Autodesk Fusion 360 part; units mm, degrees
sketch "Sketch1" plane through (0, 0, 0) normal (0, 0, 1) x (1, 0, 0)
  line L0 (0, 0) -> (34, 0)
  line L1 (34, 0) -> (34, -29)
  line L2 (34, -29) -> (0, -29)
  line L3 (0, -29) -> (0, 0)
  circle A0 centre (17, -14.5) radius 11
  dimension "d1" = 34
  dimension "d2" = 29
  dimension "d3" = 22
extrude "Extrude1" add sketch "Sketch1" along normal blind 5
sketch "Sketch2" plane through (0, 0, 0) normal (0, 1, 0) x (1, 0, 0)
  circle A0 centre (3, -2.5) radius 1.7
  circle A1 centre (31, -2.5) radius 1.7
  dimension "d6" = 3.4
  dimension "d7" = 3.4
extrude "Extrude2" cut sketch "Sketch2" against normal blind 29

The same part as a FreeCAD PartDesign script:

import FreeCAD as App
import Part
import Sketcher
from FreeCAD import Vector


def add_polygon(sketch, points):
    """Adds a closed chain of lines whose ends are joined by coincident constraints."""
    first, n = sketch.GeometryCount, len(points)
    for a, b in zip(points, points[1:] + points[:1]):
        sketch.addGeometry(Part.LineSegment(App.Vector(*a, 0), App.Vector(*b, 0)), False)
    for i in range(n):
        sketch.addConstraint(Sketcher.Constraint("Coincident", first + i, 2, first + (i + 1) % n, 1))

doc = App.newDocument("Part")
params = doc.addObject("Spreadsheet::Sheet", "Params")
for row, (alias, value) in enumerate([
    ("sketch1_diameter", "22 mm"),
    ("sketch1_width", "34 mm"),
    ("sketch1_height", "29 mm"),
    ("pad1_length", "5 mm"),
    ("sketch2_diameter", "3.4 mm"),
    ("pocket1_length", "29 mm"),
], start=1):
    params.set(f"A{row}", alias)
    params.set(f"B{row}", "=" + value)
    params.setAlias(f"B{row}", alias)

body = doc.addObject("PartDesign::Body", "Body")

# Sketch on XY plane
sketch1 = body.newObject("Sketcher::SketchObject", "Sketch")
sketch1.AttachmentSupport = (doc.getObject("XY_Plane"), [""])
sketch1.MapMode = "FlatFace"
add_polygon(sketch1, [(34, 0), (0, 0), (0, -29), (34, -29)])  # lines 0-3
sketch1.addGeometry(Part.Circle(Vector(17, -14.5, 0), Vector(0, 0, 1), 11), False)  # 4
sketch1.addConstraint(Sketcher.Constraint("Horizontal", 0))
sketch1.addConstraint(Sketcher.Constraint("Vertical", 1))
sketch1.addConstraint(Sketcher.Constraint("Horizontal", 2))
sketch1.addConstraint(Sketcher.Constraint("Vertical", 3))
sketch1.addConstraint(Sketcher.Constraint("Coincident", 0, 2, -1, 1))
sketch1.addConstraint(Sketcher.Constraint("Diameter", 4, 22.0))
sketch1.addConstraint(Sketcher.Constraint("DistanceX", 0, 2, 0, 1, 34.0))
sketch1.addConstraint(Sketcher.Constraint("DistanceY", 1, 2, 1, 1, 29.0))
sketch1.addConstraint(Sketcher.Constraint("DistanceX", -1, 1, 4, 3, 17.0))
sketch1.addConstraint(Sketcher.Constraint("DistanceY", 4, 3, -1, 1, 14.5))
sketch1.setExpression("Constraints[9]", "Params.sketch1_diameter")
sketch1.setExpression("Constraints[10]", "Params.sketch1_width")
sketch1.setExpression("Constraints[11]", "Params.sketch1_height")
pad1 = body.newObject("PartDesign::Pad", "Pad")
pad1.Profile = sketch1
pad1.setExpression("Length", "Params.pad1_length")

# Sketch on XZ plane
sketch2 = body.newObject("Sketcher::SketchObject", "Sketch001")
sketch2.AttachmentSupport = (doc.getObject("XZ_Plane"), [""])
sketch2.MapMode = "FlatFace"
sketch2.addGeometry(Part.Circle(Vector(3, 2.5, 0), Vector(0, 0, 1), 1.7), False)
sketch2.addGeometry(Part.Circle(Vector(31, 2.5, 0), Vector(0, 0, 1), 1.7), False)
sketch2.addConstraint(Sketcher.Constraint("Equal", 0, 1))
sketch2.addConstraint(Sketcher.Constraint("Horizontal", 0, 3, 1, 3))
sketch2.addConstraint(Sketcher.Constraint("Diameter", 0, 3.4))
sketch2.addConstraint(Sketcher.Constraint("DistanceX", -1, 1, 0, 3, 3.0))
sketch2.addConstraint(Sketcher.Constraint("DistanceX", -1, 1, 1, 3, 31.0))
sketch2.addConstraint(Sketcher.Constraint("DistanceY", -1, 1, 0, 3, 2.5))
sketch2.setExpression("Constraints[2]", "Params.sketch2_diameter")
pocket1 = body.newObject("PartDesign::Pocket", "Pocket")
pocket1.Profile = sketch2
pocket1.setExpression("Length", "Params.pocket1_length")
pocket1.Reversed = True

doc.recompute()
